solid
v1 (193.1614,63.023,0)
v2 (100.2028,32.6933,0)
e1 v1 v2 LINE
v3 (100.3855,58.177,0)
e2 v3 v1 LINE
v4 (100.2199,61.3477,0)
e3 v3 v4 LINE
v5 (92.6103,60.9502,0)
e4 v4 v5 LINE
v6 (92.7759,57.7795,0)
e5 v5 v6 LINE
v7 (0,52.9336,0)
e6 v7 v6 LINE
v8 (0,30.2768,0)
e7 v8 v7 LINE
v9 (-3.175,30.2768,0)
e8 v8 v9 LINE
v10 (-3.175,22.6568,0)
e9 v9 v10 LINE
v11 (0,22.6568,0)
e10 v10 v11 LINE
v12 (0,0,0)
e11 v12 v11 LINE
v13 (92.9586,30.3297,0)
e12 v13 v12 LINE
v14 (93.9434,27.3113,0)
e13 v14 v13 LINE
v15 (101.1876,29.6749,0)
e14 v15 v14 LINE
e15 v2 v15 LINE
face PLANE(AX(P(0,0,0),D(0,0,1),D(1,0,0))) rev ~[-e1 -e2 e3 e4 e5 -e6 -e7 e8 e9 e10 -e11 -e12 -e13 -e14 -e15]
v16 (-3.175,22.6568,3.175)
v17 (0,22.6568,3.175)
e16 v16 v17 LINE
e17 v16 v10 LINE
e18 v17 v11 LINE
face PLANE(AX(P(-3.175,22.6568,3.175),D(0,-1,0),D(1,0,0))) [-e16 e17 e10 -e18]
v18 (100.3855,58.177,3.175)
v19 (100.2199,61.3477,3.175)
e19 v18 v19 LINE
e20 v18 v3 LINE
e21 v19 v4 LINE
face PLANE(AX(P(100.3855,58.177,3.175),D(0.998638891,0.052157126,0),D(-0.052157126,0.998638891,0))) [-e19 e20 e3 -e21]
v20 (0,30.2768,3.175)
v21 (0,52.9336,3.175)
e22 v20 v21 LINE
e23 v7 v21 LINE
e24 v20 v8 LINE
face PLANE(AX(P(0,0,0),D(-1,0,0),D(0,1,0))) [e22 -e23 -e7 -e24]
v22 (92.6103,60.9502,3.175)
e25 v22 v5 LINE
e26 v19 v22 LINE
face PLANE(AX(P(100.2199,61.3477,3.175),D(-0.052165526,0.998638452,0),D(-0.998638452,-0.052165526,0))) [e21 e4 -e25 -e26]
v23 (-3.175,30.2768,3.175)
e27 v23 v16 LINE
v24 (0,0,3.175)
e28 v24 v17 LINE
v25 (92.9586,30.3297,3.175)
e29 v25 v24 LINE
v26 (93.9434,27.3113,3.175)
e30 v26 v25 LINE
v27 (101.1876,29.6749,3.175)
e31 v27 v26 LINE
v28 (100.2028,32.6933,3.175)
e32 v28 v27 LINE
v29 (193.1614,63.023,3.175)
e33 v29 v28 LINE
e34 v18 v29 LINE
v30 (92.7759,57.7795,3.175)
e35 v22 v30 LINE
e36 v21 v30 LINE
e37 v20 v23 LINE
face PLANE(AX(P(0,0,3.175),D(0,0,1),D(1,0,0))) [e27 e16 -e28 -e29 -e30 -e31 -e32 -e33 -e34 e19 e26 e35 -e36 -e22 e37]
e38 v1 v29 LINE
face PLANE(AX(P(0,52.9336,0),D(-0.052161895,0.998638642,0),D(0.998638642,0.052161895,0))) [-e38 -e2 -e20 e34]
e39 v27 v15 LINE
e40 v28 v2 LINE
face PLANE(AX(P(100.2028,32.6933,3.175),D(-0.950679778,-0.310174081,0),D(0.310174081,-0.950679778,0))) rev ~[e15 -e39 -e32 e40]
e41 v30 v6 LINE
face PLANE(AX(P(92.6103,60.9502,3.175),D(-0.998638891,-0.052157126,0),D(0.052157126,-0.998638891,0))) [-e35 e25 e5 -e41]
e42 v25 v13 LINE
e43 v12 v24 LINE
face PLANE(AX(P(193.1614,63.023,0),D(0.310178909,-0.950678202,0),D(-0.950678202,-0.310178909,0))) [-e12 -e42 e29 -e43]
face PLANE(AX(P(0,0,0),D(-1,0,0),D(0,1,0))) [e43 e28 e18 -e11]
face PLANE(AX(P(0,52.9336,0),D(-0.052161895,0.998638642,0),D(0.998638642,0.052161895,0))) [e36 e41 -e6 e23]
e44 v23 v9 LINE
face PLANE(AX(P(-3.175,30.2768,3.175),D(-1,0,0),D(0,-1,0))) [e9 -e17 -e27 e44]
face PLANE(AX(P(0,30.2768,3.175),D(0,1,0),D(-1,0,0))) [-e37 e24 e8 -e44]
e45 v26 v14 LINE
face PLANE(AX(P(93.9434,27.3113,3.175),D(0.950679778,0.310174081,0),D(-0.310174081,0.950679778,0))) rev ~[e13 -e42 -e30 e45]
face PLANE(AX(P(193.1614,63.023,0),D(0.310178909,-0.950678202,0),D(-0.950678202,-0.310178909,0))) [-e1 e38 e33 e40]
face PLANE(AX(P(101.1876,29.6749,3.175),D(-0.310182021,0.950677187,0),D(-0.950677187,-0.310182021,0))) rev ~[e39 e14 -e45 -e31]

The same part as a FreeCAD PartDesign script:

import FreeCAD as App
import Part
import Sketcher
from FreeCAD import Vector
Q = App.Units.Quantity


def add_polygon(sketch, points):
    """Adds a closed chain of lines whose ends are joined by coincident constraints."""
    first, n = sketch.GeometryCount, len(points)
    for a, b in zip(points, points[1:] + points[:1]):
        sketch.addGeometry(Part.LineSegment(App.Vector(*a, 0), App.Vector(*b, 0)), False)
    for i in range(n):
        sketch.addConstraint(Sketcher.Constraint("Coincident", first + i, 2, first + (i + 1) % n, 1))

doc = App.newDocument("Part")
body = doc.addObject("PartDesign::Body", "Body")

# Sketch on XY plane
sketch1 = body.newObject("Sketcher::SketchObject", "Sketch")
sketch1.AttachmentSupport = (doc.getObject("XY_Plane"), [""])
sketch1.MapMode = "FlatFace"
add_polygon(sketch1, [(0, 52.9336), (0, 0), (193.1614, 63.023)])  # lines 0-2
sketch1.addConstraint(Sketcher.Constraint("Vertical", 0))
sketch1.addConstraint(Sketcher.Constraint("Coincident", 0, 2, -1, 1))
sketch1.addConstraint(Sketcher.Constraint("DistanceY", 0, 2, 0, 1, Q("2.084 in")))
sketch1.addConstraint(Sketcher.Constraint("Angle", 1, Q("18.07 deg")))
sketch1.addConstraint(Sketcher.Constraint("Angle", 2, Q("-177.01 deg")))
pad1 = body.newObject("PartDesign::Pad", "Pad")
pad1.Profile = sketch1
pad1.Length = Q("0.125 in")

# Sketch on XY plane
sketch2 = body.newObject("Sketcher::SketchObject", "Sketch001")
sketch2.AttachmentSupport = (doc.getObject("XY_Plane"), [""])
sketch2.MapMode = "FlatFace"
sketch2.AttachmentOffset = App.Placement(Vector(0, 0, 0.125 * 25.4), App.Rotation())
add_polygon(sketch2, [(0, 22.6568), (0, 30.2768), (-3.175, 30.2768), (-3.175, 22.6568)])  # lines 0-3
add_polygon(sketch2, [(92.6103, 60.9502), (92.775897, 57.779564), (100.3855, 58.177), (100.2199, 61.3477)])  # lines 4-7
add_polygon(sketch2, [(100.202804, 32.693288), (92.9586, 30.3297), (93.9434, 27.3113), (101.1876, 29.6749)])  # lines 8-11
sketch2.addConstraint(Sketcher.Constraint("Vertical", 0))
sketch2.addConstraint(Sketcher.Constraint("Horizontal", 1))
sketch2.addConstraint(Sketcher.Constraint("Vertical", 2))
sketch2.addConstraint(Sketcher.Constraint("Horizontal", 3))
sketch2.addConstraint(Sketcher.Constraint("PointOnObject", 0, 2, -2))
sketch2.addConstraint(Sketcher.Constraint("Perpendicular", 4, 5))
sketch2.addConstraint(Sketcher.Constraint("Perpendicular", 5, 6))
sketch2.addConstraint(Sketcher.Constraint("Perpendicular", 6, 7))
sketch2.addConstraint(Sketcher.Constraint("Perpendicular", 8, 9))
sketch2.addConstraint(Sketcher.Constraint("Perpendicular", 9, 10))
sketch2.addConstraint(Sketcher.Constraint("Perpendicular", 10, 11))
sketch2.addConstraint(Sketcher.Constraint("Equal", 7, 8))
sketch2.addConstraint(Sketcher.Constraint("Equal", 6, 9))
sketch2.addConstraint(Sketcher.Constraint("DistanceY", 0, 1, 0, 2, Q("0.3 in")))
sketch2.addConstraint(Sketcher.Constraint("Distance", 5, Q("0.3 in")))
sketch2.addConstraint(Sketcher.Constraint("DistanceX", 1, 2, 1, 1, Q("0.125 in")))
sketch2.addConstraint(Sketcher.Constraint("Distance", 4, Q("0.125 in")))
sketch2.addConstraint(Sketcher.Constraint("Angle", 4, Q("-87.0103 deg")))
sketch2.addConstraint(Sketcher.Constraint("Angle", 8, Q("-161.93 deg")))
sketch2.addConstraint(Sketcher.Constraint("DistanceY", -1, 1, 0, 2, Q("1.192 in")))
sketch2.addConstraint(Sketcher.Constraint("DistanceX", -1, 1, 11, 2, Q("3.945 in")))
sketch2.addConstraint(Sketcher.Constraint("DistanceX", -1, 1, 4, 2, Q("3.6526 in")))
sketch2.addConstraint(Sketcher.Constraint("DistanceY", -1, 1, 10, 2, Q("1.1683 in")))
sketch2.addConstraint(Sketcher.Constraint("DistanceY", 8, 2, 4, 2, Q("1.0807 in")))
pad2 = body.newObject("PartDesign::Pad", "Pad001")
pad2.Profile = sketch2
pad2.Length = Q("0.125 in")
pad2.Reversed = True

doc.recompute()
